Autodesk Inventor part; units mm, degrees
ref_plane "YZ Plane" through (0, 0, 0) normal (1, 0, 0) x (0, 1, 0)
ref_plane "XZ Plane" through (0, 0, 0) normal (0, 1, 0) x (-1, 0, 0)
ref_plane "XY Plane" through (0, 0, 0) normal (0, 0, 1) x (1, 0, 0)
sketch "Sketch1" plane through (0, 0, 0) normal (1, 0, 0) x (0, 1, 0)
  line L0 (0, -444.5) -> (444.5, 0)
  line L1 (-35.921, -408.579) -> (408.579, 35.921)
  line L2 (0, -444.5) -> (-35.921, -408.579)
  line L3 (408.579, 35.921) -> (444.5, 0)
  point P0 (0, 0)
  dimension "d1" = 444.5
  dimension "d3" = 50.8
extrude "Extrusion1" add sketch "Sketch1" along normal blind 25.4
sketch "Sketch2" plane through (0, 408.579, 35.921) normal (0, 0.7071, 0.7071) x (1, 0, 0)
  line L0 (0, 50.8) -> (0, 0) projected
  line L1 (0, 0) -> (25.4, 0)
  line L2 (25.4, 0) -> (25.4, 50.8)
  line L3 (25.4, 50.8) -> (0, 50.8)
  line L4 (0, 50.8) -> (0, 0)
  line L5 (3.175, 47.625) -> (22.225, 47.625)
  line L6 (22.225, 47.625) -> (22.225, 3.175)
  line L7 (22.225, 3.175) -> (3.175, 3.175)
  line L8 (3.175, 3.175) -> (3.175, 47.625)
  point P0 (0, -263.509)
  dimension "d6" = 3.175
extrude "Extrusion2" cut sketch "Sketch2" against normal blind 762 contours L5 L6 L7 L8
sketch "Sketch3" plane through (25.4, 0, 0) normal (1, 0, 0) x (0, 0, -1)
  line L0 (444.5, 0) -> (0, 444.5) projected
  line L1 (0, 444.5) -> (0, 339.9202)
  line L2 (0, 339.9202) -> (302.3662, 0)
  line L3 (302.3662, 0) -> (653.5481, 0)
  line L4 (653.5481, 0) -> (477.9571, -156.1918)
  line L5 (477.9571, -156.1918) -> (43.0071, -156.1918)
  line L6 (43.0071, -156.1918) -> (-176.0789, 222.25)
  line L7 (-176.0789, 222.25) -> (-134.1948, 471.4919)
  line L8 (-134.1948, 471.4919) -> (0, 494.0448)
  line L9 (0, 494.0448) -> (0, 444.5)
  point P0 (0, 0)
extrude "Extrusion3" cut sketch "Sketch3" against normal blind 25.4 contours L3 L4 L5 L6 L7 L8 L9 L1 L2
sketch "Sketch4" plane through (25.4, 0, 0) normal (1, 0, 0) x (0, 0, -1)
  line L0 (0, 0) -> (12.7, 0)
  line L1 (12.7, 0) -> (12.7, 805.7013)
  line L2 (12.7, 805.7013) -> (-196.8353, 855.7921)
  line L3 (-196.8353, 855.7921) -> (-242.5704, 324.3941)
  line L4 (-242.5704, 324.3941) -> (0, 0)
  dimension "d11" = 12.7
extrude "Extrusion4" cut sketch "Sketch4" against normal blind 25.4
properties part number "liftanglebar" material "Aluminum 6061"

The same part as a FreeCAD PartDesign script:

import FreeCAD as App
import Part
import Sketcher
from FreeCAD import Vector
Q = App.Units.Quantity


def add_polygon(sketch, points):
    """Adds a closed chain of lines whose ends are joined by coincident constraints."""
    first, n = sketch.GeometryCount, len(points)
    for a, b in zip(points, points[1:] + points[:1]):
        sketch.addGeometry(Part.LineSegment(App.Vector(*a, 0), App.Vector(*b, 0)), False)
    for i in range(n):
        sketch.addConstraint(Sketcher.Constraint("Coincident", first + i, 2, first + (i + 1) % n, 1))

doc = App.newDocument("Part")
body = doc.addObject("PartDesign::Body", "Body")

sketch1 = doc.addObject("Sketcher::SketchObject", "Sketch")
body.addObject(sketch1)
sketch1.AttachmentSupport = (doc.YZ_Plane, [""])
sketch1.MapMode = "FlatFace"
add_polygon(sketch1, [(-36, -409), (0, -444), (444, 0), (409, 36)])
sketch1.addConstraint([
    Sketcher.Constraint("PointOnObject", 0, 2, -2),
    Sketcher.Constraint("PointOnObject", 1, 2, -1),
    Sketcher.Constraint("Perpendicular", 0, 1),
    Sketcher.Constraint("Perpendicular", 1, 2),
    Sketcher.Constraint("Perpendicular", 2, 3),
    Sketcher.Constraint("Distance", 0, Q("2 in")),
    Sketcher.Constraint("DistanceY", 0, 2, -1, 1, Q("17.5 in")),
    Sketcher.Constraint("DistanceX", -1, 1, 1, 2, Q("17.5 in")),
])
pad1 = doc.addObject("PartDesign::Pad", "Pad")
body.addObject(pad1)
pad1.Profile = sketch1
pad1.Length = Q("1 in")

sketch2 = doc.addObject("Sketcher::SketchObject", "Sketch001")
body.addObject(sketch2)
sketch2.Placement = App.Placement(Vector(0, 408.579, 35.921), App.Rotation(Vector(1, 0, 0), Vector(0, 0.707106781, -0.707106781), Vector(0, 0.707106781, 0.707106781), "ZXY"))
add_polygon(sketch2, [(22, 48), (3, 48), (3, 3), (22, 3)])
sketch2.addConstraint([
    Sketcher.Constraint("Horizontal", 0),
    Sketcher.Constraint("Vertical", 1),
    Sketcher.Constraint("Horizontal", 2),
    Sketcher.Constraint("Vertical", 3),
    Sketcher.Constraint("DistanceX", -1, 1, 0, 2, Q("0.125 in")),
    Sketcher.Constraint("DistanceY", -1, 1, 1, 2, Q("0.125 in")),
    Sketcher.Constraint("DistanceX", 0, 2, 0, 1, Q("0.75 in")),
    Sketcher.Constraint("DistanceY", 1, 2, 1, 1, Q("1.75 in")),
])
pocket1 = doc.addObject("PartDesign::Pocket", "Pocket")
body.addObject(pocket1)
pocket1.Profile = sketch2
pocket1.Length = Q("30 in")

sketch3 = doc.addObject("Sketcher::SketchObject", "Sketch002")
body.addObject(sketch3)
sketch3.AttachmentSupport = (doc.YZ_Plane, [""])
sketch3.MapMode = "FlatFace"
sketch3.AttachmentOffset = App.Placement(Vector(0, 0, 1 * 25.4), App.Rotation())
add_polygon(sketch3, [(0, -654), (0, -302), (340, 0), (494, 0), (471, 134), (222, 176), (-156, -43), (-156, -478)])
sketch3.addConstraint([
    Sketcher.Constraint("Vertical", 0),
    Sketcher.Constraint("Horizontal", 2),
    Sketcher.Constraint("Vertical", 6),
    Sketcher.Constraint("PointOnObject", 0, 2, -2),
    Sketcher.Constraint("PointOnObject", 1, 2, -1),
    Sketcher.Constraint("Perpendicular", 1, 7),
    Sketcher.Constraint("DistanceX", -1, 1, 4, 2, Q("8.75 in")),
    Sketcher.Constraint("Angle", 3, Q("99.54 deg")),
    Sketcher.Constraint("Angle", 4, Q("170.4608 deg")),
    Sketcher.Constraint("DistanceX", 1, 2, 3, 2, Q("5.18 in")),
    Sketcher.Constraint("DistanceX", 2, 1, 2, 2, Q("6.0679 in")),
    Sketcher.Constraint("DistanceY", 0, 2, 5, 2, Q("10.211 in")),
    Sketcher.Constraint("DistanceY", 0, 1, 0, 2, Q("351.182 mm")),
    Sketcher.Constraint("DistanceY", 6, 2, 6, 1, Q("434.95 mm")),
    Sketcher.Constraint("DistanceY", 5, 2, -1, 1, Q("1.6932 in")),
    Sketcher.Constraint("Distance", 1, Q("454.9407 mm")),
])
pocket2 = doc.addObject("PartDesign::Pocket", "Pocket001")
body.addObject(pocket2)
pocket2.Profile = sketch3
pocket2.Length = Q("1 in")

sketch4 = doc.addObject("Sketcher::SketchObject", "Sketch003")
body.addObject(sketch4)
sketch4.AttachmentSupport = (doc.YZ_Plane, [""])
sketch4.MapMode = "FlatFace"
sketch4.AttachmentOffset = App.Placement(Vector(0, 0, 1 * 25.4), App.Rotation())
add_polygon(sketch4, [(324.3941, 242.5704), (0, 0), (0, -12.7), (805.7013, -12.7), (855.7921, 196.8353)])
sketch4.addConstraint([
    Sketcher.Constraint("Vertical", 1),
    Sketcher.Constraint("Horizontal", 2),
    Sketcher.Constraint("Coincident", 0, 2, -1, 1),
    Sketcher.Constraint("DistanceY", 1, 2, 1, 1, Q("0.5 in")),
    Sketcher.Constraint("DistanceX", 2, 1, 2, 2, Q("805.7013 mm")),
    Sketcher.Constraint("DistanceX", -1, 1, 3, 2, Q("33.6926 in")),
    Sketcher.Constraint("DistanceY", 3, 2, 4, 2, Q("1.8006 in")),
    Sketcher.Constraint("DistanceX", 4, 2, 2, 2, Q("18.9491 in")),
    Sketcher.Constraint("Distance", 0, Q("405.058 mm")),
])
pocket3 = doc.addObject("PartDesign::Pocket", "Pocket002")
body.addObject(pocket3)
pocket3.Profile = sketch4
pocket3.Length = Q("1 in")

doc.recompute()
